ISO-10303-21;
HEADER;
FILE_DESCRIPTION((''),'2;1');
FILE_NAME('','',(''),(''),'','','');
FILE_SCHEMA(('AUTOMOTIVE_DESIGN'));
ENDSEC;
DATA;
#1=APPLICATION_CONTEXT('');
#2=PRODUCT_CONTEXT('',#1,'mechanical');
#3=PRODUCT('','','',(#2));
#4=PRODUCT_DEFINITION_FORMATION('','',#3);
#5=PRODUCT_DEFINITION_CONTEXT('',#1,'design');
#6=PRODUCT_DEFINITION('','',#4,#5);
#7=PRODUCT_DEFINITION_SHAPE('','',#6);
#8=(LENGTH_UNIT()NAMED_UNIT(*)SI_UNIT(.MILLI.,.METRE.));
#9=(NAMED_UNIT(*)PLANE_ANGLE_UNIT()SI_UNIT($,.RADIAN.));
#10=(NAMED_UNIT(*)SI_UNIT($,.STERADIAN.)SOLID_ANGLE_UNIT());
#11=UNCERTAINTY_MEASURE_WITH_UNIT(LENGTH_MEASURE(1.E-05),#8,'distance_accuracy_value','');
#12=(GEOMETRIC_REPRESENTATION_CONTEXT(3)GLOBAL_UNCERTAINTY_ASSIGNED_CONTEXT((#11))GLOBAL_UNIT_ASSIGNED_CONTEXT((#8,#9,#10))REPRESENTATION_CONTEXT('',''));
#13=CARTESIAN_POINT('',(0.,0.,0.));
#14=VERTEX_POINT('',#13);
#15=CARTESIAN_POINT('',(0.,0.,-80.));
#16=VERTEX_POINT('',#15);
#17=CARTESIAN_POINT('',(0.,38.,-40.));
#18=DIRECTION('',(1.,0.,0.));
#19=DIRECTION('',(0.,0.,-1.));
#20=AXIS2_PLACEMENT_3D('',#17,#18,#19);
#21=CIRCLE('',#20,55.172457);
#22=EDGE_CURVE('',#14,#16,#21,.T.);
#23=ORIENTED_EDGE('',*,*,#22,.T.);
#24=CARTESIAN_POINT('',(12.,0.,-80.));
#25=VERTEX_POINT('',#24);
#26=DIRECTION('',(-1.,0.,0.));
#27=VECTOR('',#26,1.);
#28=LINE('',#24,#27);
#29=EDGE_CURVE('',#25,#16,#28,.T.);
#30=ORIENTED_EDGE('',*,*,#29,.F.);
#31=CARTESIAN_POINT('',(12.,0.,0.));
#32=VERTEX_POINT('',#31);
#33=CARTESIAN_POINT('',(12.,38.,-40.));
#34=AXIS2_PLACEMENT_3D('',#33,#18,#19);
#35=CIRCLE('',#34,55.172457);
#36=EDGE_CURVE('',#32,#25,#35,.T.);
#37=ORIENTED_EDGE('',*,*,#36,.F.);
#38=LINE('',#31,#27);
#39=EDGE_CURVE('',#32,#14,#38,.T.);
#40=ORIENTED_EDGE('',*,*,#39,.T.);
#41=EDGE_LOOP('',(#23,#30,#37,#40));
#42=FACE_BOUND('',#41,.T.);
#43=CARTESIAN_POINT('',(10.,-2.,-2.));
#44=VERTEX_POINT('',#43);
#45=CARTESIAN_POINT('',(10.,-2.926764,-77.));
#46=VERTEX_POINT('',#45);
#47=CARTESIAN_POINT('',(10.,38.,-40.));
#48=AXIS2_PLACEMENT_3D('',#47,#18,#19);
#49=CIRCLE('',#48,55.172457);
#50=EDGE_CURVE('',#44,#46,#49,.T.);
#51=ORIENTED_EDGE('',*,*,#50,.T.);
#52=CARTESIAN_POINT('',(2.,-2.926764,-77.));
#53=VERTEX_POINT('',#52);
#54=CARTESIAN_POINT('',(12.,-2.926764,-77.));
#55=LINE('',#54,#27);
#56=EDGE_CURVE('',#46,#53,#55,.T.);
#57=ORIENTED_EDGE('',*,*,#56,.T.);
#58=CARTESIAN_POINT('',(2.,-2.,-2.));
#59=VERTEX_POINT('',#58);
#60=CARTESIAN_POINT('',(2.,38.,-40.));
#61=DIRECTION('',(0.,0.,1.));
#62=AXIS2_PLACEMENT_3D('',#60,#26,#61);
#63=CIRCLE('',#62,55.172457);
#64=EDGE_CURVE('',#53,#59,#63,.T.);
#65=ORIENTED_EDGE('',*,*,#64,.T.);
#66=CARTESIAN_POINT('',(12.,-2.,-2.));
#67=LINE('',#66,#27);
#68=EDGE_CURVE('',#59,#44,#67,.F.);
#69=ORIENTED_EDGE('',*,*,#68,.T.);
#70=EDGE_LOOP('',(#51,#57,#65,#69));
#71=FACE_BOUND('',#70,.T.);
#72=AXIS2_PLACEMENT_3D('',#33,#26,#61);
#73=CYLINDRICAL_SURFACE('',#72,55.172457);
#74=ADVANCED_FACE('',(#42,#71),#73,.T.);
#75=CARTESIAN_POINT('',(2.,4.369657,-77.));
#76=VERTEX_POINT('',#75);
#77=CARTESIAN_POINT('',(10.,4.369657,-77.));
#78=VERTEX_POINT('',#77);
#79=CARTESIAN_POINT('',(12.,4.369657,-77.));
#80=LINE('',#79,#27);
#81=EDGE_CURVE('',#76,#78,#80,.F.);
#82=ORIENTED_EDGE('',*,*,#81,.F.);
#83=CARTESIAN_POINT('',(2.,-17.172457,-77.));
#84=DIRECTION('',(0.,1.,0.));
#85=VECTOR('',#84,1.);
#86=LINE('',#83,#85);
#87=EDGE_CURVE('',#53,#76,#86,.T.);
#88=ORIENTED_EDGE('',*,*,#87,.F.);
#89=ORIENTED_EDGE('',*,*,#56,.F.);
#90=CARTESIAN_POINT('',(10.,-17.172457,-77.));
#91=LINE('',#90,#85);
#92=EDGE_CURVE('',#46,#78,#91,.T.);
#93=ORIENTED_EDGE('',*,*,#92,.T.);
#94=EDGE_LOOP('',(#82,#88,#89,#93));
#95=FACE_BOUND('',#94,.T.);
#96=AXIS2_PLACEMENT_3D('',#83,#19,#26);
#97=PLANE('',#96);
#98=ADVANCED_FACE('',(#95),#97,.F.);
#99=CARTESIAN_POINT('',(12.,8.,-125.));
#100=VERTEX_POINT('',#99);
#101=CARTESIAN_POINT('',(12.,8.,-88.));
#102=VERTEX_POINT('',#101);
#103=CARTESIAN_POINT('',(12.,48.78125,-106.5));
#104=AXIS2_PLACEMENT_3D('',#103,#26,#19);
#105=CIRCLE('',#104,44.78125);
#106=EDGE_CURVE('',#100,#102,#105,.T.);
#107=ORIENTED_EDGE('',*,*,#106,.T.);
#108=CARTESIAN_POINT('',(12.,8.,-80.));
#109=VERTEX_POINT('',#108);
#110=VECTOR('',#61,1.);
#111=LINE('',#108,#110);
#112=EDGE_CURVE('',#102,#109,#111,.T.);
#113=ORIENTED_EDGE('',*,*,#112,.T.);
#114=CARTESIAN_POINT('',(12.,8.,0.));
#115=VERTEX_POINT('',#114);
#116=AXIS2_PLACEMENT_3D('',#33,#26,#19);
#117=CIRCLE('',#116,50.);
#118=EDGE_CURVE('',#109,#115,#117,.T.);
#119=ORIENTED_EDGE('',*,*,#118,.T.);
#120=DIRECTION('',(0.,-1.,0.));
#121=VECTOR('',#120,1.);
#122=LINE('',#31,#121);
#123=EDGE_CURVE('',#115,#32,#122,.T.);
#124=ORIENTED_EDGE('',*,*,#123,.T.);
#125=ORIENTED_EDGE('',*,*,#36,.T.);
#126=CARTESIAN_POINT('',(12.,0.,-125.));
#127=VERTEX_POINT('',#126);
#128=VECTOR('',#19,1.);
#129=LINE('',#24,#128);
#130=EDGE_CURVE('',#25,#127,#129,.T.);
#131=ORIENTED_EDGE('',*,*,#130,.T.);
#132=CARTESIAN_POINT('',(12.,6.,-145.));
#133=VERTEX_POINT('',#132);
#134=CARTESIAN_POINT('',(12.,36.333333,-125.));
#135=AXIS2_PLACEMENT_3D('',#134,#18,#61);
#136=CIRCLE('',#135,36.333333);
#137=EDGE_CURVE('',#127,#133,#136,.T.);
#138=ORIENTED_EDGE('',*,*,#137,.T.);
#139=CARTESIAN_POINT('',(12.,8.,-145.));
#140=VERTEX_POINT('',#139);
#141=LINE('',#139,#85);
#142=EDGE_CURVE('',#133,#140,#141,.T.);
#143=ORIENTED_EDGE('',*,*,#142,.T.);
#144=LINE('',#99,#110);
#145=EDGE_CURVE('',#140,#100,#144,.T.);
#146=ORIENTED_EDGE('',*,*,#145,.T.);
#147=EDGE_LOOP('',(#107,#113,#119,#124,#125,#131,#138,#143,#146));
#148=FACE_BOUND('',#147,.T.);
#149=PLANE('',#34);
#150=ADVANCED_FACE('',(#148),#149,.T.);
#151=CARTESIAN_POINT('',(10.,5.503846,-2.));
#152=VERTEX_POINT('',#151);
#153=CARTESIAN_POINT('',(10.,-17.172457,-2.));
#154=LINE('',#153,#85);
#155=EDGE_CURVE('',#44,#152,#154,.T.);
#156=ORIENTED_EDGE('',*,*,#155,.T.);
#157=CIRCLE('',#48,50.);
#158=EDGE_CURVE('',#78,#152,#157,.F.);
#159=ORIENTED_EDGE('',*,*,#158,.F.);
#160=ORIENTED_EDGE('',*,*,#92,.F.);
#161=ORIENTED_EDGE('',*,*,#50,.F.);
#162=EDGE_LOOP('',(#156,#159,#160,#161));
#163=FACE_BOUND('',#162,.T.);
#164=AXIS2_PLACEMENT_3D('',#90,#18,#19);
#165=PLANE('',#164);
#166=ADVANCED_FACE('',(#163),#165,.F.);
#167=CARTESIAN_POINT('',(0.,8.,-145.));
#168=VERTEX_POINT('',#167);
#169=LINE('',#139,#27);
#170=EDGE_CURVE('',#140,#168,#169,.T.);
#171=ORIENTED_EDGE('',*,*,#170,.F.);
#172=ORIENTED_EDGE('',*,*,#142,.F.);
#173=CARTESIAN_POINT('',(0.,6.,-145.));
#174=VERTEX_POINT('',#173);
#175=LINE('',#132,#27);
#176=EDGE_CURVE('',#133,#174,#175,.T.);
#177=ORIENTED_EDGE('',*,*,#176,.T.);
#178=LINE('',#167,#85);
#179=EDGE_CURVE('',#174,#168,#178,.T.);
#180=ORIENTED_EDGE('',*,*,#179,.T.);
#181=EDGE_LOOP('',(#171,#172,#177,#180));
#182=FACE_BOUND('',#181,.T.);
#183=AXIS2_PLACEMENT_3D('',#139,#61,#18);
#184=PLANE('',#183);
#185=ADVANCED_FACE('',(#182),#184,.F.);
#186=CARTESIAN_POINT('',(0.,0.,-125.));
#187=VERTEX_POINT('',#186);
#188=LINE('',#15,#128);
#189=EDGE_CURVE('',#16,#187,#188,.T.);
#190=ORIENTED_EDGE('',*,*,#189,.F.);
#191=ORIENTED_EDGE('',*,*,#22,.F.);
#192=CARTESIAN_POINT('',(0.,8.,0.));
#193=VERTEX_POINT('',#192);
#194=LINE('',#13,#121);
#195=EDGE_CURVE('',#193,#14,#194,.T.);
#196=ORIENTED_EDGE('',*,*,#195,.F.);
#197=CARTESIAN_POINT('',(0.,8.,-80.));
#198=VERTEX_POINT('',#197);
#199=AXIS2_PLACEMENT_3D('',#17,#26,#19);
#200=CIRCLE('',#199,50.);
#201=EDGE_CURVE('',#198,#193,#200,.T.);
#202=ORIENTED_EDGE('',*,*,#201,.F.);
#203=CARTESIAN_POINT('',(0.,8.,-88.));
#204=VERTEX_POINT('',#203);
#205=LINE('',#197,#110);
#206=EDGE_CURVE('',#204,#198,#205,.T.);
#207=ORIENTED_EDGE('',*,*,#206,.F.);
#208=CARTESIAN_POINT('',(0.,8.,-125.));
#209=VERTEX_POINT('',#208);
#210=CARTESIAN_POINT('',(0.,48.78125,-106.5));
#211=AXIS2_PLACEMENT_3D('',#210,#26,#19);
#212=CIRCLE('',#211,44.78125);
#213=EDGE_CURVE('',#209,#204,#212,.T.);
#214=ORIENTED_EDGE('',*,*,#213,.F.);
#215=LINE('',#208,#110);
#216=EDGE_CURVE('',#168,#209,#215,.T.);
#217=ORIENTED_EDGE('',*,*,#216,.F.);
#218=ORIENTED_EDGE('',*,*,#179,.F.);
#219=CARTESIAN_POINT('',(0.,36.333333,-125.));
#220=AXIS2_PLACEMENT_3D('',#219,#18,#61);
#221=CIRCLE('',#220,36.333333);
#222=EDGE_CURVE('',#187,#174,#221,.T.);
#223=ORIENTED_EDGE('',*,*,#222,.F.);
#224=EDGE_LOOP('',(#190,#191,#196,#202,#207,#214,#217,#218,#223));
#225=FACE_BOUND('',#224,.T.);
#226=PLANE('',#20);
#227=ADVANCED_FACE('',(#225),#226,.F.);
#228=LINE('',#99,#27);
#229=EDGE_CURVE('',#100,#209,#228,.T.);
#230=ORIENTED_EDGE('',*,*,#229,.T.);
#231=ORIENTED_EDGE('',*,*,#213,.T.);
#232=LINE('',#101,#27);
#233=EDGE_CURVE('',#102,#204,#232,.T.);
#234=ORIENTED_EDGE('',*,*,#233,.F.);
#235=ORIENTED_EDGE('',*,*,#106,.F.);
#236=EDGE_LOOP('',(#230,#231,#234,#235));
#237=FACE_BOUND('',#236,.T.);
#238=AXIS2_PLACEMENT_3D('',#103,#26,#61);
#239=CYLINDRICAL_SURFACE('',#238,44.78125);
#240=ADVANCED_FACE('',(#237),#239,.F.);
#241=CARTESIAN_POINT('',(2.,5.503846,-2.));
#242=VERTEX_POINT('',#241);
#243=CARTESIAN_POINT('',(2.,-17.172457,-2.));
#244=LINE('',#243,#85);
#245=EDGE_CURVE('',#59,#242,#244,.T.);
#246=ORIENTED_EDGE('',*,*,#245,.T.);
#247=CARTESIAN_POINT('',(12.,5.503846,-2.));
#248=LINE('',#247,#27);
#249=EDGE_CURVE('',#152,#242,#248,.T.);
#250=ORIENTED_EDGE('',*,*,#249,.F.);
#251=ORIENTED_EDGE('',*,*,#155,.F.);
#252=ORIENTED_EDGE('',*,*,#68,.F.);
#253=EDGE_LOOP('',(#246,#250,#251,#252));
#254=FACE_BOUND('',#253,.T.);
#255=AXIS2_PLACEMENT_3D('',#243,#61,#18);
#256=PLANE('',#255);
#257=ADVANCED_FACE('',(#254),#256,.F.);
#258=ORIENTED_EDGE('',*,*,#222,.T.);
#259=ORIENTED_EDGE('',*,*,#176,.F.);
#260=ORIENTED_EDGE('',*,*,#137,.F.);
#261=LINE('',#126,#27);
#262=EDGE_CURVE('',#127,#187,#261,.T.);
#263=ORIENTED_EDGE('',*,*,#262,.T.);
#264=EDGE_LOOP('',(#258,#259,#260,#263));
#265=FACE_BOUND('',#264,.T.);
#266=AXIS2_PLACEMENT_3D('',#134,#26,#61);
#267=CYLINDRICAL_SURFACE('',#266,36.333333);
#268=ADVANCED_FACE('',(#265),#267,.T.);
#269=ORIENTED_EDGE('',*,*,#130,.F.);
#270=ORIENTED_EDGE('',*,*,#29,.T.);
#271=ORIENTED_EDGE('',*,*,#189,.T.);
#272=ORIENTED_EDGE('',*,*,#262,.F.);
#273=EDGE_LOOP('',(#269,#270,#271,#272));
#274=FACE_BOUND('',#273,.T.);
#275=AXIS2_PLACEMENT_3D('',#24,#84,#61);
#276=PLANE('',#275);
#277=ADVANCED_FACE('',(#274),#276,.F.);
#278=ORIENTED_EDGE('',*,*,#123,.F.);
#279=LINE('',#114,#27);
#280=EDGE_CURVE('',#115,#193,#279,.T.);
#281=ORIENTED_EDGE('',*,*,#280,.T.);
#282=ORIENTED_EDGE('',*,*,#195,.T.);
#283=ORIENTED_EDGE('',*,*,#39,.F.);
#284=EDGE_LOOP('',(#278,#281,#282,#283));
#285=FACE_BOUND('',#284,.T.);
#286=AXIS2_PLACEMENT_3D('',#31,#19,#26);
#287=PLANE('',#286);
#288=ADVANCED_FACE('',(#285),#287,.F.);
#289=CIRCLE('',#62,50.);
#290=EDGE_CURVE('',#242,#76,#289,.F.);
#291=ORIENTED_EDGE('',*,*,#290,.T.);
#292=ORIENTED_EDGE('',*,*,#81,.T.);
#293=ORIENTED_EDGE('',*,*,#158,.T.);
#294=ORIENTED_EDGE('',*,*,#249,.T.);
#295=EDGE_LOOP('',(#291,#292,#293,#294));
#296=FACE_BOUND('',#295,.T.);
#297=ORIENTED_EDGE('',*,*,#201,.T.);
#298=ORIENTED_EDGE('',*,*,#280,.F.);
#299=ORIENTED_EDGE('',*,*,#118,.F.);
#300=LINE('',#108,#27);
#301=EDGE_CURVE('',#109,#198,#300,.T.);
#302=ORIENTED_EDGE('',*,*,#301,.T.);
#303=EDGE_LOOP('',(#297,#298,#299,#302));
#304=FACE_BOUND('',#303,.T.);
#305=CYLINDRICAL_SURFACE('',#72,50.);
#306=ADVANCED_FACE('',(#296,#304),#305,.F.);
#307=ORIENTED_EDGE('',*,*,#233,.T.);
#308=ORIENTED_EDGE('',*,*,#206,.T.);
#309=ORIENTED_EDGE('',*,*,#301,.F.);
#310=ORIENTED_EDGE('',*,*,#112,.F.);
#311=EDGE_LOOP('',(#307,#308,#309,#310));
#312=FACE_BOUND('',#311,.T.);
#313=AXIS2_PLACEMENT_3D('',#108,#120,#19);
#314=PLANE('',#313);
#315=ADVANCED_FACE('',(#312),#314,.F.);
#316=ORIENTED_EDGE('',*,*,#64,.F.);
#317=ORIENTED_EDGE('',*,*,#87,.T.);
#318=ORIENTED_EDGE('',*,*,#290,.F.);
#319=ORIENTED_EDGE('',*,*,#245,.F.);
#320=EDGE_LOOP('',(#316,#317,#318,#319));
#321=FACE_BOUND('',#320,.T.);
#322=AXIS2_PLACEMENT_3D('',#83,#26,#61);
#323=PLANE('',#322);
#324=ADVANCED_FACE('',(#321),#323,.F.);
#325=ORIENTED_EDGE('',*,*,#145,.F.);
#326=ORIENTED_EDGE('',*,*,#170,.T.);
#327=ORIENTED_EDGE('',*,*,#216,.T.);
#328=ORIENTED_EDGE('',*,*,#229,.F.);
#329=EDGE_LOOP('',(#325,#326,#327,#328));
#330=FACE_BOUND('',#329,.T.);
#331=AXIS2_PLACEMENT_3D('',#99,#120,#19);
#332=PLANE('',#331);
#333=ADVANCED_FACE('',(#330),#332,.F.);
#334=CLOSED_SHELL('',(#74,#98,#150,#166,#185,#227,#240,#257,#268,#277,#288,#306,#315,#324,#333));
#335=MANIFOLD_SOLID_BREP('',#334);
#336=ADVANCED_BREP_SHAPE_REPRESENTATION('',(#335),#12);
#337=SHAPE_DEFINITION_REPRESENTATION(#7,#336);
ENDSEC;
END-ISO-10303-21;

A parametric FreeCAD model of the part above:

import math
import FreeCAD as App
import Part
import Sketcher
Q = App.Units.Quantity

doc = App.newDocument("Part")
body = doc.addObject("PartDesign::Body", "Body")

sketch1 = doc.addObject("Sketcher::SketchObject", "Sketch")
body.addObject(sketch1)
sketch1.AttachmentSupport = (doc.YZ_Plane, [""])
sketch1.MapMode = "FlatFace"
sketch1.addGeometry([
    Part.LineSegment(App.Vector(8, 0, 0), App.Vector(0, 0, 0)),
    Part.ArcOfCircle(Part.Circle(App.Vector(38, -40, 0), App.Vector(0, 0, 1), 55.172457), math.radians(133.531199), math.radians(226.468801)),
    Part.LineSegment(App.Vector(0, -80, 0), App.Vector(0, -125, 0)),
    Part.ArcOfCircle(Part.Circle(App.Vector(36.333333, -125, 0), App.Vector(0, 0, 1), 36.333333), math.radians(180), math.radians(213.398488)),
    Part.LineSegment(App.Vector(6, -145, 0), App.Vector(8, -145, 0)),
    Part.LineSegment(App.Vector(8, -145, 0), App.Vector(8, -125, 0)),
    Part.ArcOfCircle(Part.Circle(App.Vector(48.78125, -106.5, 0), App.Vector(0, 0, 1), 44.78125), math.radians(155.599063), math.radians(204.400937)),
    Part.LineSegment(App.Vector(8, -88, 0), App.Vector(8, -80, 0)),
    Part.ArcOfCircle(Part.Circle(App.Vector(38, -40, 0), App.Vector(0, 0, 1), 50), math.radians(126.869898), math.radians(233.130102)),
], False)
sketch1.addConstraint([
    Sketcher.Constraint("Coincident", 0, 2, 1, 1),
    Sketcher.Constraint("Coincident", 1, 2, 2, 1),
    Sketcher.Constraint("Tangent", 2, 2, 3, 1),
    Sketcher.Constraint("Coincident", 3, 2, 4, 1),
    Sketcher.Constraint("Coincident", 4, 2, 5, 1),
    Sketcher.Constraint("Coincident", 5, 2, 6, 2),
    Sketcher.Constraint("Coincident", 6, 1, 7, 1),
    Sketcher.Constraint("Coincident", 7, 2, 8, 2),
    Sketcher.Constraint("Coincident", 8, 1, 0, 1),
    Sketcher.Constraint("Horizontal", 0),
    Sketcher.Constraint("Vertical", 2),
    Sketcher.Constraint("Horizontal", 4),
    Sketcher.Constraint("Vertical", 5),
    Sketcher.Constraint("Vertical", 7),
    Sketcher.Constraint("Coincident", 0, 2, -1, 1),
    Sketcher.Constraint("Coincident", 8, 3, 1, 3),
    Sketcher.Constraint("PointOnObject", 1, 2, -2),
    Sketcher.Constraint("Horizontal", 2, 2, 5, 2),
    Sketcher.Constraint("Horizontal", 1, 2, 7, 2),
    Sketcher.Constraint("Vertical", 5, 2, 6, 1),
    Sketcher.Constraint("Equal", 0, 7),
    Sketcher.Constraint("Radius", 8, Q("50 mm")),
    Sketcher.Constraint("DistanceX", 0, 2, 0, 1, Q("8 mm")),
    Sketcher.Constraint("DistanceX", 4, 1, 4, 2, Q("2 mm")),
    Sketcher.Constraint("DistanceY", 2, 2, 2, 1, Q("45 mm")),
    Sketcher.Constraint("DistanceY", 5, 1, 5, 2, Q("20 mm")),
    Sketcher.Constraint("DistanceX", -1, 1, 1, 3, Q("38 mm")),
    Sketcher.Constraint("Radius", 6, Q("44.78125 mm")),
])
pad1 = doc.addObject("PartDesign::Pad", "Pad")
body.addObject(pad1)
pad1.Profile = sketch1
pad1.Length = 12

sketch2 = doc.addObject("Sketcher::SketchObject", "Sketch001")
body.addObject(sketch2)
sketch2.AttachmentSupport = (doc.XZ_Plane, [""])
sketch2.MapMode = "FlatFace"
sketch2.addGeometry([
    Part.LineSegment(App.Vector(2, -77, 0), App.Vector(2, -2, 0)),
    Part.LineSegment(App.Vector(2, -2, 0), App.Vector(10, -2, 0)),
    Part.LineSegment(App.Vector(10, -2, 0), App.Vector(10, -77, 0)),
    Part.LineSegment(App.Vector(10, -77, 0), App.Vector(2, -77, 0)),
], False)
sketch2.addConstraint([
    Sketcher.Constraint("Coincident", 0, 2, 1, 1),
    Sketcher.Constraint("Coincident", 1, 2, 2, 1),
    Sketcher.Constraint("Coincident", 2, 2, 3, 1),
    Sketcher.Constraint("Coincident", 3, 2, 0, 1),
    Sketcher.Constraint("Vertical", 0),
    Sketcher.Constraint("Horizontal", 1),
    Sketcher.Constraint("Vertical", 2),
    Sketcher.Constraint("Horizontal", 3),
    Sketcher.Constraint("DistanceX", 1, 1, 1, 2, Q("8 mm")),
    Sketcher.Constraint("DistanceY", 0, 1, 0, 2, Q("75 mm")),
    Sketcher.Constraint("DistanceX", -1, 1, 0, 2, Q("2 mm")),
    Sketcher.Constraint("DistanceY", 0, 2, -1, 1, Q("2 mm")),
])
pocket1 = doc.addObject("PartDesign::Pocket", "Pocket")
body.addObject(pocket1)
pocket1.Profile = sketch2
pocket1.Type = "ThroughAll"
pocket1.Midplane = True

doc.recompute()
